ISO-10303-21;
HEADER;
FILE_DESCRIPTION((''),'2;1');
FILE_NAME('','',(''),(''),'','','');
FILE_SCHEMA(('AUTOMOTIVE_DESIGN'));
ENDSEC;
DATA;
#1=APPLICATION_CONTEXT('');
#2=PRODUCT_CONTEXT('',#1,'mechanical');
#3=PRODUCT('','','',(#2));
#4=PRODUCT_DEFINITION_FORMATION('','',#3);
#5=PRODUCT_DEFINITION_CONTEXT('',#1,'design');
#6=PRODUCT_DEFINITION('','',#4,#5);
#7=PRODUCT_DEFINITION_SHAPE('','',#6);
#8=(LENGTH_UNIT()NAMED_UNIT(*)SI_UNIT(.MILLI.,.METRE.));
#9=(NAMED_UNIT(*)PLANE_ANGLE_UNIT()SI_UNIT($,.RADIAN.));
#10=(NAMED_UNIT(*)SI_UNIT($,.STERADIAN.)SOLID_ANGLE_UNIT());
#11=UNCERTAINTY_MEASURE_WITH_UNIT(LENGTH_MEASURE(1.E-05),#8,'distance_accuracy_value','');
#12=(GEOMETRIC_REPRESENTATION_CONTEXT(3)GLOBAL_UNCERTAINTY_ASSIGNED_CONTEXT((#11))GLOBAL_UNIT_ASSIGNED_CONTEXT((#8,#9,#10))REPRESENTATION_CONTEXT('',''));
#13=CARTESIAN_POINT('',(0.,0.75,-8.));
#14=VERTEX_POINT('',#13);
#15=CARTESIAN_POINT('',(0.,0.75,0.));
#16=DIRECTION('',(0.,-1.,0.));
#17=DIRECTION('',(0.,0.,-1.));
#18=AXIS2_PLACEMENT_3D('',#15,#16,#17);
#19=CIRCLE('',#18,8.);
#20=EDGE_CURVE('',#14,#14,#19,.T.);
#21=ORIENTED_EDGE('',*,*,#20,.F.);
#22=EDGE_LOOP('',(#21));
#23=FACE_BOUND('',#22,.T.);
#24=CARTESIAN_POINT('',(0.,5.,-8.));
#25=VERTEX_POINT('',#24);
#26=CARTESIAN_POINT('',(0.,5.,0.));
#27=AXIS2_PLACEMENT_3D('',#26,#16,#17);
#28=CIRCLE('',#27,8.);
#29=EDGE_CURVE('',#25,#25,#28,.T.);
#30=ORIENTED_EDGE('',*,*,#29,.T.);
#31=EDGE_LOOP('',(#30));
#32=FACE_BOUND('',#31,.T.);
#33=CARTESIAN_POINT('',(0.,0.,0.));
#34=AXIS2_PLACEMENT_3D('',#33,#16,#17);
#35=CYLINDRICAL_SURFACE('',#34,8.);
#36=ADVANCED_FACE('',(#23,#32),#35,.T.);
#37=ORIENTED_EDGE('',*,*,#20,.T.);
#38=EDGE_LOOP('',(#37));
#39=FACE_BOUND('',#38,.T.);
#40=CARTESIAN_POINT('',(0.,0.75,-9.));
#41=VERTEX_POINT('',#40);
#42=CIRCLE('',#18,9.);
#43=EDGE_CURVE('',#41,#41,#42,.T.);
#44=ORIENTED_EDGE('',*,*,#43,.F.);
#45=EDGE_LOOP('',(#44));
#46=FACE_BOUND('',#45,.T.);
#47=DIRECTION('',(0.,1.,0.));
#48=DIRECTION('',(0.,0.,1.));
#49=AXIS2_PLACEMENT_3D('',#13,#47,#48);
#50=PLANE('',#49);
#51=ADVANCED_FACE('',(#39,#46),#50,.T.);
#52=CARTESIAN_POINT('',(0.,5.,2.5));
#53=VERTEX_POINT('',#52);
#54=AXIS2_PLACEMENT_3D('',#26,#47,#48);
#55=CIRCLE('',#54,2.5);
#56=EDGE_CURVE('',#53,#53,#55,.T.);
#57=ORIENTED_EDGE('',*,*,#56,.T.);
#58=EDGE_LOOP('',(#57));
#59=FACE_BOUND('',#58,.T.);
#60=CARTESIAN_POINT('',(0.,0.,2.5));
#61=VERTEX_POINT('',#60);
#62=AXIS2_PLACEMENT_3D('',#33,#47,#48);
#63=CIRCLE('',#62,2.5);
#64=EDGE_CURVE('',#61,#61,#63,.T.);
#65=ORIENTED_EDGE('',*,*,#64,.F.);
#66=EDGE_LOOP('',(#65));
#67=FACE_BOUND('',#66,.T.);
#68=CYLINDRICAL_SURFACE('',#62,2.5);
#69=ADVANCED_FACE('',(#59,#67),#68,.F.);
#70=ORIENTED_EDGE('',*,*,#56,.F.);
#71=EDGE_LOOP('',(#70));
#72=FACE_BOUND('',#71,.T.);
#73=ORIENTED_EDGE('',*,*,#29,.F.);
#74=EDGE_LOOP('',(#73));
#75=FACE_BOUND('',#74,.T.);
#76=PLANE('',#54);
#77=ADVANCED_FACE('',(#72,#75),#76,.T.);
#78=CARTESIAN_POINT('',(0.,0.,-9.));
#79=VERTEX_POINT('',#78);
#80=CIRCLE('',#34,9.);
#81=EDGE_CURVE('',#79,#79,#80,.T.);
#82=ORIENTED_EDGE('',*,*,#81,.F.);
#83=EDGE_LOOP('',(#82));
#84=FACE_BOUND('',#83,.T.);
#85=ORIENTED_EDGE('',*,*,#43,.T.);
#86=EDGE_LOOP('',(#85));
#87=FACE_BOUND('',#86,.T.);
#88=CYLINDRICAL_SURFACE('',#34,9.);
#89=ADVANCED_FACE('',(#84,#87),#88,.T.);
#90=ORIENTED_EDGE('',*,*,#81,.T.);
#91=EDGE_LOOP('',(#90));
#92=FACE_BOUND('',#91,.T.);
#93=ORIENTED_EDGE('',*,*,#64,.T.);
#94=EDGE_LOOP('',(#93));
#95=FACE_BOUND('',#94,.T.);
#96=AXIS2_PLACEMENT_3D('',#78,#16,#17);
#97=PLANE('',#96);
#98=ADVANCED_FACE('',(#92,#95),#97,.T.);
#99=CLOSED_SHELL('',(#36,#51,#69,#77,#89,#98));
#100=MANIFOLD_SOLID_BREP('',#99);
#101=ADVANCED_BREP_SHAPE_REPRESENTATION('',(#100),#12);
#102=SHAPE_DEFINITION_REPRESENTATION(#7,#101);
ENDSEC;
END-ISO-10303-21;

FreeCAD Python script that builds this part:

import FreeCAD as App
import Part
import Sketcher
from FreeCAD import Vector


def add_polygon(sketch, points):
    """Adds a closed chain of lines whose ends are joined by coincident constraints."""
    first, n = sketch.GeometryCount, len(points)
    for a, b in zip(points, points[1:] + points[:1]):
        sketch.addGeometry(Part.LineSegment(App.Vector(*a, 0), App.Vector(*b, 0)), False)
    for i in range(n):
        sketch.addConstraint(Sketcher.Constraint("Coincident", first + i, 2, first + (i + 1) % n, 1))

doc = App.newDocument("Part")
params = doc.addObject("Spreadsheet::Sheet", "Params")
for row, (alias, value) in enumerate([
    ("sketch1_width", "5 mm"),
    ("sketch1_height", "9 mm"),
    ("sketch1_height2", "1 mm"),
    ("sketch1_width2", "0.75 mm"),
    ("revolution_angle", "360 deg"),
    ("sketch2_diameter", "5 mm"),
], start=1):
    params.set(f"A{row}", alias)
    params.set(f"B{row}", "=" + value)
    params.setAlias(f"B{row}", alias)

body = doc.addObject("PartDesign::Body", "Body")

sketch1 = body.newObject("Sketcher::SketchObject", "Sketch")
sketch1.AttachmentSupport = (doc.getObject("YZ_Plane"), [""])
sketch1.MapMode = "FlatFace"
add_polygon(sketch1, [(5, 0), (0, 0), (0, -9), (0.75, -9), (0.75, -8), (5, -8)])
sketch1.addConstraint([
    Sketcher.Constraint("Horizontal", 0),
    Sketcher.Constraint("Vertical", 1),
    Sketcher.Constraint("Horizontal", 2),
    Sketcher.Constraint("Vertical", 3),
    Sketcher.Constraint("Horizontal", 4),
    Sketcher.Constraint("Vertical", 5),
    Sketcher.Constraint("Coincident", 0, 2, -1, 1),
    Sketcher.Constraint("DistanceX", 0, 2, 0, 1, 5.0),
    Sketcher.Constraint("DistanceY", 1, 2, 1, 1, 9.0),
    Sketcher.Constraint("DistanceY", 3, 1, 3, 2, 1.0),
    Sketcher.Constraint("DistanceX", 2, 1, 2, 2, 0.75),
])
sketch1.setExpression("Constraints[13]", "Params.sketch1_width")
sketch1.setExpression("Constraints[14]", "Params.sketch1_height")
sketch1.setExpression("Constraints[15]", "Params.sketch1_height2")
sketch1.setExpression("Constraints[16]", "Params.sketch1_width2")
revolution = body.newObject("PartDesign::Revolution", "Revolution")
revolution.Profile = sketch1
revolution.ReferenceAxis = (sketch1, ["H_Axis"])
revolution.setExpression("Angle", "Params.revolution_angle")

sketch2 = body.newObject("Sketcher::SketchObject", "Sketch001")
sketch2.AttachmentSupport = (doc.getObject("XZ_Plane"), [""])
sketch2.MapMode = "FlatFace"
sketch2.AttachmentOffset = App.Placement(Vector(0, 0, -5), App.Rotation())
sketch2.addGeometry(Part.Circle(Vector(0, 0, 0), Vector(0, 0, 1), 2.5), False)
sketch2.addConstraint([
    Sketcher.Constraint("Coincident", 0, 3, -1, 1),
    Sketcher.Constraint("Diameter", 0, 5.0),
])
sketch2.setExpression("Constraints[1]", "Params.sketch2_diameter")
pocket1 = body.newObject("PartDesign::Pocket", "Pocket")
pocket1.Profile = sketch2
pocket1.Type = "ThroughAll"
pocket1.Reversed = True

doc.recompute()
